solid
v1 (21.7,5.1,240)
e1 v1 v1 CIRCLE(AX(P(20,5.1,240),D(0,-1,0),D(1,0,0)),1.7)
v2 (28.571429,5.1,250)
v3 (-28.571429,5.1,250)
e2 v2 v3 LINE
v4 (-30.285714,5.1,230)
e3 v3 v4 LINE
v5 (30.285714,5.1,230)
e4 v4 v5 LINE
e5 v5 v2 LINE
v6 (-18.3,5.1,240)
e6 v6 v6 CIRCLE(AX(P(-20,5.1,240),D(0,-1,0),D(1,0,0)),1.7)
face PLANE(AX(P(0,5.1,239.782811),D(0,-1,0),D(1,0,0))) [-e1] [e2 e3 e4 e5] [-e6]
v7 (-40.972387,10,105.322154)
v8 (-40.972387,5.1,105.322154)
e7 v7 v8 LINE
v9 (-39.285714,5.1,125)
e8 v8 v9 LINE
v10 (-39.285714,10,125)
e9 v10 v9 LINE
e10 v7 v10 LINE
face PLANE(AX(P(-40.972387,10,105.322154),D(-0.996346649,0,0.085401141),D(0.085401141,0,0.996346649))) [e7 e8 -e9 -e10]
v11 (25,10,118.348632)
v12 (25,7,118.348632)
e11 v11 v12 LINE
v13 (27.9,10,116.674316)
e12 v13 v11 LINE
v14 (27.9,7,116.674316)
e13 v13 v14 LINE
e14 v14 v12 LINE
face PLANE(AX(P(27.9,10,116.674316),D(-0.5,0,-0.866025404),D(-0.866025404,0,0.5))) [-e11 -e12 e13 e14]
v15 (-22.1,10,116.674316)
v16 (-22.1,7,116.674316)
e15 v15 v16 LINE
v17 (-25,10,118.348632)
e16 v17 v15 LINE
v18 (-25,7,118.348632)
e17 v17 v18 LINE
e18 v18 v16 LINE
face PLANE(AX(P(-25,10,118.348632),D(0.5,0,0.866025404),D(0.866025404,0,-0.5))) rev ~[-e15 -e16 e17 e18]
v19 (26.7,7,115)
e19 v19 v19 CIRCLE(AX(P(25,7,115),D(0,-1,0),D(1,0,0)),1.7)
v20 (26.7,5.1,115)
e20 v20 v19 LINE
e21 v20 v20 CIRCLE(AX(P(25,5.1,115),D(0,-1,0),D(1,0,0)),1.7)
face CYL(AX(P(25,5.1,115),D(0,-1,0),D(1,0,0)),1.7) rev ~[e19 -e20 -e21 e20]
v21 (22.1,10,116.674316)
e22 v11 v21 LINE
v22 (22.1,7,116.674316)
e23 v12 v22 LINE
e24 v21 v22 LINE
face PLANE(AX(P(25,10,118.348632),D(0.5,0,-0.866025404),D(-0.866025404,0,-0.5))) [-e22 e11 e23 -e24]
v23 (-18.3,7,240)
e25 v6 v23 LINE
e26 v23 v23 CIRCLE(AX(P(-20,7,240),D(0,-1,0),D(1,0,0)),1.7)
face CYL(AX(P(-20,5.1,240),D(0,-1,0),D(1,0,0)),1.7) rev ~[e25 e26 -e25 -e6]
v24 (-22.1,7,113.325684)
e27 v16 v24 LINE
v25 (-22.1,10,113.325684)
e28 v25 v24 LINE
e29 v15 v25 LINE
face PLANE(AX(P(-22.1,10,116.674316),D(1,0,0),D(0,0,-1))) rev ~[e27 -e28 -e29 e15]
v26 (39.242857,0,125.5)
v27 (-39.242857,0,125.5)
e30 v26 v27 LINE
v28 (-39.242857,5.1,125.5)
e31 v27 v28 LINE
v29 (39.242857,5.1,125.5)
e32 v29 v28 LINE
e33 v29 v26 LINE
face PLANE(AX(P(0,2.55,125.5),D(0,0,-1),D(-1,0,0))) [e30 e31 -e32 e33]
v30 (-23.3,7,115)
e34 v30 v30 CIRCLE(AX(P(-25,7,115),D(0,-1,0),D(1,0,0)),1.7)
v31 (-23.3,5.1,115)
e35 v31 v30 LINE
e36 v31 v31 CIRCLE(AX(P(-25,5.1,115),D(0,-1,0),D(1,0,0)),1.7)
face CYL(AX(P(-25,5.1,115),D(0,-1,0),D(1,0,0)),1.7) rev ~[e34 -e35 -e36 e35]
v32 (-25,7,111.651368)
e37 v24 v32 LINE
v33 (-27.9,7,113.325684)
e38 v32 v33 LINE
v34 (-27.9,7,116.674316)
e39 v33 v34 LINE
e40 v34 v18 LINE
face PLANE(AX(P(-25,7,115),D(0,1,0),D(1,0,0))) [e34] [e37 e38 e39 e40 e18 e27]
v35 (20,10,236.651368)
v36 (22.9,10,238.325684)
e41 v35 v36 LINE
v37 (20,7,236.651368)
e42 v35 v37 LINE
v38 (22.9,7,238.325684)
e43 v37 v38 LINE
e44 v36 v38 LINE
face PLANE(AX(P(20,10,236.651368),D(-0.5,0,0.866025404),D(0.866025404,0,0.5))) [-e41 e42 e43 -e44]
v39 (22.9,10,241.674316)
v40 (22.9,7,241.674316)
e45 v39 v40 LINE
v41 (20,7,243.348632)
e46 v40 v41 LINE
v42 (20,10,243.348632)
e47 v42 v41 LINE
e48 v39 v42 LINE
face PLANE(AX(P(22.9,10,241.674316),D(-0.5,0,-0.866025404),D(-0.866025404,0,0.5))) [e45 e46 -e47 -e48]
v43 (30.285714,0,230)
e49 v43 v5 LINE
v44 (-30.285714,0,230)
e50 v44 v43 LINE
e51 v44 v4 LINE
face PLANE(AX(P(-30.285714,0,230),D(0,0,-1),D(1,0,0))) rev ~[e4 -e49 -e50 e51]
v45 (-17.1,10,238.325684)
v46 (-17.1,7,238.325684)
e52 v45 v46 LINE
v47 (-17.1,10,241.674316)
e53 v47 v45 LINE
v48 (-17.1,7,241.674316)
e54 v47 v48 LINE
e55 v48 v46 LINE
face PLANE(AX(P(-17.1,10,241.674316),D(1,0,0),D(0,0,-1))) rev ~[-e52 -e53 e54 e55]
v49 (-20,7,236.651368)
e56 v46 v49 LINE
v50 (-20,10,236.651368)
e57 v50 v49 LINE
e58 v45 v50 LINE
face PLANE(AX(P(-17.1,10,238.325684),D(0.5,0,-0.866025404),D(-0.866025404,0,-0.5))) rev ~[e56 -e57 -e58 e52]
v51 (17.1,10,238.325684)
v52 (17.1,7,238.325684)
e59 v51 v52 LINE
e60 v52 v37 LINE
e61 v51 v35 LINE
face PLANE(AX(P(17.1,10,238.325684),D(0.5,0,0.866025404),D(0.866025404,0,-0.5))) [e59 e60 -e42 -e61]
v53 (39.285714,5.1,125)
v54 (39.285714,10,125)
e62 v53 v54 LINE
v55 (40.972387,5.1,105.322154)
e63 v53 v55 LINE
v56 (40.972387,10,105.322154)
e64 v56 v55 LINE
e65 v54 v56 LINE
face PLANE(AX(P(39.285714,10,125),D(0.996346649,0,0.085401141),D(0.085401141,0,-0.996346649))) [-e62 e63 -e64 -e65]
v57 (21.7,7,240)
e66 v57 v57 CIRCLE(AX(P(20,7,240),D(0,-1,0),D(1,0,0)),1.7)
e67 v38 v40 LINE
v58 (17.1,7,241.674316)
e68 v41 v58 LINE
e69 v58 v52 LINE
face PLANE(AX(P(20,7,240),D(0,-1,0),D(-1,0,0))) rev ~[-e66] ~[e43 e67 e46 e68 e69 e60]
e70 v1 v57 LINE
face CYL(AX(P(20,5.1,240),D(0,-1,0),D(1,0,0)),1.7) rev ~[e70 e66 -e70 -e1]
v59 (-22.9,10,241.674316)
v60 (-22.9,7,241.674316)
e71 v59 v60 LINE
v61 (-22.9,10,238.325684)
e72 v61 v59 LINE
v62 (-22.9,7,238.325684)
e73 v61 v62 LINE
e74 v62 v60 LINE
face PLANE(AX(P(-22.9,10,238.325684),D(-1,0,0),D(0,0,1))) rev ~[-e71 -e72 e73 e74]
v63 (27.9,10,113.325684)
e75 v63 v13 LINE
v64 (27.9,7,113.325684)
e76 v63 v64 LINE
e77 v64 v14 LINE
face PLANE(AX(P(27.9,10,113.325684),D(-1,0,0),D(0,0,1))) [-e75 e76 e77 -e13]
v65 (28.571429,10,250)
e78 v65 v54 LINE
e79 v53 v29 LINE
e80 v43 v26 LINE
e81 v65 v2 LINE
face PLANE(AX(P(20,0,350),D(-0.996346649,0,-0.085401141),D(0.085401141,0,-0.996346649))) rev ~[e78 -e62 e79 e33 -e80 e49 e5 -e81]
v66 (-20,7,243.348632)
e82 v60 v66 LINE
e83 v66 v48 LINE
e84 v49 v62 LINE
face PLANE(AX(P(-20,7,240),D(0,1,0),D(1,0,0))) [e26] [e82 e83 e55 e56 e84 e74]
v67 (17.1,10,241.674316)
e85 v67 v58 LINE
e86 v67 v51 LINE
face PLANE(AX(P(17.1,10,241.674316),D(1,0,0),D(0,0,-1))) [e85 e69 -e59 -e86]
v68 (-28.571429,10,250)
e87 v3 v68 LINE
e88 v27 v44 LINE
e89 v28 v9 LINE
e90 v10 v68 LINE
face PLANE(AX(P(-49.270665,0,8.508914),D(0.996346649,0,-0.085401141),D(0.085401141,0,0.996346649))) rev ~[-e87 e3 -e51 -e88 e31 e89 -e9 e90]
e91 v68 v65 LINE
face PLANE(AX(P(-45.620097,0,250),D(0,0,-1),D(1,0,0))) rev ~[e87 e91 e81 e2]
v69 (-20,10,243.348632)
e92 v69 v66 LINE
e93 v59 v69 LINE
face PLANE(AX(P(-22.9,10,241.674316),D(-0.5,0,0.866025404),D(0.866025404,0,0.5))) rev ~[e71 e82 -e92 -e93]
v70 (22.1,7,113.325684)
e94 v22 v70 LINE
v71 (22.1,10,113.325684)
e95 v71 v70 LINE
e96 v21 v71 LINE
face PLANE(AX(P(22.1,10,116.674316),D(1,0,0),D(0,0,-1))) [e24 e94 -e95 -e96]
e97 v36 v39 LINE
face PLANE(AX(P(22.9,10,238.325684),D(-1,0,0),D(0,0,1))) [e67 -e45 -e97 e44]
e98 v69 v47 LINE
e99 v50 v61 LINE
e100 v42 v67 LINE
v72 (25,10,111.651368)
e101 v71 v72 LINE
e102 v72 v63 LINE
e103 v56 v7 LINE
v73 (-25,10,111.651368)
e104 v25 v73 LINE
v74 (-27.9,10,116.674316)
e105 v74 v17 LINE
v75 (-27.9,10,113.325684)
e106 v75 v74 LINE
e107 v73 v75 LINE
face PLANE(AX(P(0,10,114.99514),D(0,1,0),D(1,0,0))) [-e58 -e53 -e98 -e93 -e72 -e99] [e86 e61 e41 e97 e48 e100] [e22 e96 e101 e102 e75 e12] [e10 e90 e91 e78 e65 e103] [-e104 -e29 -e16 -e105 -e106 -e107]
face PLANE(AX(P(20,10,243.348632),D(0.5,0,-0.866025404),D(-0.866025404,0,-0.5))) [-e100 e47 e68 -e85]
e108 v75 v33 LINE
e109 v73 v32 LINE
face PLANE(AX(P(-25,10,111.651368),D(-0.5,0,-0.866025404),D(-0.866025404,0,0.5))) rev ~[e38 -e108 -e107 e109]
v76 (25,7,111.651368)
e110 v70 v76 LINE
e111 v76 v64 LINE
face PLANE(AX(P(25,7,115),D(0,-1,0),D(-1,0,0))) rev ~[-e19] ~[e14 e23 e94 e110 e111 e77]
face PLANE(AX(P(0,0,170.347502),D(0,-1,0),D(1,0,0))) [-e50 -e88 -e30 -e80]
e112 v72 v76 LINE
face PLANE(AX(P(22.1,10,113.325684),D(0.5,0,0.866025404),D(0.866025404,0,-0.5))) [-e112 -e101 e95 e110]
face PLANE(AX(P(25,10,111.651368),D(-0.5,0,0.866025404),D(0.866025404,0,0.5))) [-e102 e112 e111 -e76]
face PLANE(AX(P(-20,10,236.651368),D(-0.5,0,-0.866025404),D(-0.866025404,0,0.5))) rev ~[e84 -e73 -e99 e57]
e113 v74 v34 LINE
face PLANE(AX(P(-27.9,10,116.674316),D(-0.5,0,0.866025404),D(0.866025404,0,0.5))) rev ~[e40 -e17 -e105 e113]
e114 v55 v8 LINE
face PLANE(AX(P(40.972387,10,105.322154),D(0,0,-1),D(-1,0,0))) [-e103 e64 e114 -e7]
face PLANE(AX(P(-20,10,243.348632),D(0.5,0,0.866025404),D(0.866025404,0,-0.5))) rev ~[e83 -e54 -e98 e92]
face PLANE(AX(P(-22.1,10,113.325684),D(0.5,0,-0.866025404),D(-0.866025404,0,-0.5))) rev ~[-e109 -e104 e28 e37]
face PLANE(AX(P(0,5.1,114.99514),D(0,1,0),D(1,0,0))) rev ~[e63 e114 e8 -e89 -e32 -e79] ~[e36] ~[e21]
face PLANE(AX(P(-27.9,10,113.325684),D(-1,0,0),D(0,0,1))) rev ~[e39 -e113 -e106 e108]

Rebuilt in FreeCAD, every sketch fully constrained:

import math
import FreeCAD as App
import Part
import Sketcher
Q = App.Units.Quantity

doc = App.newDocument("Part")
body = doc.addObject("PartDesign::Body", "Body")

# Sketch on XZ plane
sketch1 = body.newObject("Sketcher::SketchObject", "Sketch")
sketch1.AttachmentSupport = (doc.getObject("XZ_Plane"), [""])
sketch1.MapMode = "FlatFace"
sketch1.addGeometry(Part.Circle(App.Vector(0, 0, 0), App.Vector(0, 0, 1), 50), False)
sketch1.addConstraint(Sketcher.Constraint("Coincident", 0, 3, -1, 1))
sketch1.addConstraint(Sketcher.Constraint("Diameter", 0, 100.0))
pad1 = body.newObject("PartDesign::Pad", "Pad")
pad1.Profile = sketch1
pad1.Length = 10
pad1.Reversed = True

# Sketch on XZ plane
sketch2 = body.newObject("Sketcher::SketchObject", "Sketch001")
sketch2.AttachmentSupport = (doc.getObject("XZ_Plane"), [""])
sketch2.MapMode = "FlatFace"
sketch2.AttachmentOffset = App.Placement(App.Vector(0, 0, -10), App.Rotation())
sketch2.addGeometry(Part.Circle(App.Vector(0, 0, 0), App.Vector(0, 0, 1), 20), False)
sketch2.addConstraint(Sketcher.Constraint("Coincident", 0, 3, -1, 1))
sketch2.addConstraint(Sketcher.Constraint("Diameter", 0, 40.0))
pocket1 = body.newObject("PartDesign::Pocket", "Pocket")
pocket1.Profile = sketch2
pocket1.Length = 5
pocket1.Reversed = True

# Sketch on XZ plane
sketch3 = body.newObject("Sketcher::SketchObject", "Sketch002")
sketch3.AttachmentSupport = (doc.getObject("XZ_Plane"), [""])
sketch3.MapMode = "FlatFace"
sketch3.addGeometry(Part.LineSegment(App.Vector(2.9, 16.6, 0), App.Vector(0, 18.3, 0)), False)
sketch3.addGeometry(Part.LineSegment(App.Vector(0, 18.3, 0), App.Vector(-2.9, 16.6, 0)), False)
sketch3.addGeometry(Part.LineSegment(App.Vector(-2.9, 16.6, 0), App.Vector(-2.9, 13.4, 0)), False)
sketch3.addGeometry(Part.LineSegment(App.Vector(-2.9, 13.4, 0), App.Vector(0, 11.7, 0)), False)
sketch3.addGeometry(Part.LineSegment(App.Vector(0, 11.7, 0), App.Vector(2.9, 13.4, 0)), False)
sketch3.addGeometry(Part.LineSegment(App.Vector(2.9, 13.4, 0), App.Vector(2.9, 16.6, 0)), False)
sketch3.addGeometry(Part.LineSegment(App.Vector(-13, -4.2, 0), App.Vector(-15.8, -5.9, 0)), False)
sketch3.addGeometry(Part.LineSegment(App.Vector(-15.8, -5.9, 0), App.Vector(-15.8, -9.1, 0)), False)
sketch3.addGeometry(Part.LineSegment(App.Vector(-15.8, -9.1, 0), App.Vector(-13, -10.8, 0)), False)
sketch3.addGeometry(Part.LineSegment(App.Vector(-13, -10.8, 0), App.Vector(-10.1, -9.1, 0)), False)
sketch3.addGeometry(Part.LineSegment(App.Vector(-10.1, -9.1, 0), App.Vector(-10.1, -5.9, 0)), False)
sketch3.addGeometry(Part.LineSegment(App.Vector(-10.1, -5.9, 0), App.Vector(-13, -4.2, 0)), False)
sketch3.addGeometry(Part.LineSegment(App.Vector(15.8, -5.9, 0), App.Vector(13, -4.2, 0)), False)
sketch3.addGeometry(Part.LineSegment(App.Vector(13, -4.2, 0), App.Vector(10.1, -5.9, 0)), False)
sketch3.addGeometry(Part.LineSegment(App.Vector(10.1, -5.9, 0), App.Vector(10.1, -9.1, 0)), False)
sketch3.addGeometry(Part.LineSegment(App.Vector(10.1, -9.1, 0), App.Vector(13, -10.8, 0)), False)
sketch3.addGeometry(Part.LineSegment(App.Vector(13, -10.8, 0), App.Vector(15.8, -9.1, 0)), False)
sketch3.addGeometry(Part.LineSegment(App.Vector(15.8, -9.1, 0), App.Vector(15.8, -5.9, 0)), False)
sketch3.addConstraint(Sketcher.Constraint("Coincident", 0, 2, 1, 1))
sketch3.addConstraint(Sketcher.Constraint("Coincident", 1, 2, 2, 1))
sketch3.addConstraint(Sketcher.Constraint("Coincident", 2, 2, 3, 1))
sketch3.addConstraint(Sketcher.Constraint("Coincident", 3, 2, 4, 1))
sketch3.addConstraint(Sketcher.Constraint("Coincident", 4, 2, 5, 1))
sketch3.addConstraint(Sketcher.Constraint("Coincident", 5, 2, 0, 1))
sketch3.addConstraint(Sketcher.Constraint("Coincident", 6, 2, 7, 1))
sketch3.addConstraint(Sketcher.Constraint("Coincident", 7, 2, 8, 1))
sketch3.addConstraint(Sketcher.Constraint("Coincident", 8, 2, 9, 1))
sketch3.addConstraint(Sketcher.Constraint("Coincident", 9, 2, 10, 1))
sketch3.addConstraint(Sketcher.Constraint("Coincident", 10, 2, 11, 1))
sketch3.addConstraint(Sketcher.Constraint("Coincident", 11, 2, 6, 1))
sketch3.addConstraint(Sketcher.Constraint("Coincident", 12, 2, 13, 1))
sketch3.addConstraint(Sketcher.Constraint("Coincident", 13, 2, 14, 1))
sketch3.addConstraint(Sketcher.Constraint("Coincident", 14, 2, 15, 1))
sketch3.addConstraint(Sketcher.Constraint("Coincident", 15, 2, 16, 1))
sketch3.addConstraint(Sketcher.Constraint("Coincident", 16, 2, 17, 1))
sketch3.addConstraint(Sketcher.Constraint("Coincident", 17, 2, 12, 1))
sketch3.addConstraint(Sketcher.Constraint("Vertical", 2))
sketch3.addConstraint(Sketcher.Constraint("Vertical", 5))
sketch3.addConstraint(Sketcher.Constraint("Vertical", 7))
sketch3.addConstraint(Sketcher.Constraint("Vertical", 10))
sketch3.addConstraint(Sketcher.Constraint("Vertical", 14))
sketch3.addConstraint(Sketcher.Constraint("Vertical", 17))
sketch3.addConstraint(Sketcher.Constraint("Symmetric", 2, 2, 4, 2, -2))
sketch3.addConstraint(Sketcher.Constraint("Symmetric", 11, 2, 12, 2, -2))
sketch3.addConstraint(Sketcher.Constraint("Symmetric", 10, 2, 13, 2, -2))
sketch3.addConstraint(Sketcher.Constraint("Symmetric", 8, 2, 15, 2, -2))
sketch3.addConstraint(Sketcher.Constraint("Symmetric", 7, 2, 16, 2, -2))
sketch3.addConstraint(Sketcher.Constraint("PointOnObject", 0, 2, -2))
sketch3.addConstraint(Sketcher.Constraint("PointOnObject", 3, 2, -2))
sketch3.addConstraint(Sketcher.Constraint("Parallel", 0, 3))
sketch3.addConstraint(Sketcher.Constraint("Parallel", 1, 4))
sketch3.addConstraint(Sketcher.Constraint("Parallel", 4, 6))
sketch3.addConstraint(Sketcher.Constraint("Parallel", 3, 8))
sketch3.addConstraint(Sketcher.Constraint("Parallel", 6, 9))
sketch3.addConstraint(Sketcher.Constraint("Parallel", 8, 11))
sketch3.addConstraint(Sketcher.Constraint("Parallel", 11, 12))
sketch3.addConstraint(Sketcher.Constraint("Parallel", 12, 15))
sketch3.addConstraint(Sketcher.Constraint("Horizontal", 7, 2, 9, 2))
sketch3.addConstraint(Sketcher.Constraint("Horizontal", 6, 2, 10, 2))
sketch3.addConstraint(Sketcher.Constraint("Equal", 5, 7))
sketch3.addConstraint(Sketcher.Constraint("Equal", 4, 6))
sketch3.addConstraint(Sketcher.Constraint("Angle", 0, Q("150 deg")))
sketch3.addConstraint(Sketcher.Constraint("DistanceX", 2, 2, 4, 2, 5.7))
sketch3.addConstraint(Sketcher.Constraint("DistanceY", 6, 2, 1, 2, 22.5))
sketch3.addConstraint(Sketcher.Constraint("DistanceY", 2, 2, 2, 1, 3.290897))
sketch3.addConstraint(Sketcher.Constraint("DistanceY", -1, 1, 1, 2, 16.645448))
sketch3.addConstraint(Sketcher.Constraint("DistanceX", 6, 2, -1, 1, 15.840381))
pocket2 = body.newObject("PartDesign::Pocket", "Pocket001")
pocket2.Profile = sketch3
pocket2.Length = 3

# Sketch on XZ plane
sketch4 = body.newObject("Sketcher::SketchObject", "Sketch003")
sketch4.AttachmentSupport = (doc.getObject("XZ_Plane"), [""])
sketch4.MapMode = "FlatFace"
sketch4.addGeometry(Part.Circle(App.Vector(0, 15, 0), App.Vector(0, 0, 1), 1.7), False)
sketch4.addGeometry(Part.Circle(App.Vector(13, -7.5, 0), App.Vector(0, 0, 1), 1.7), False)
sketch4.addGeometry(Part.Circle(App.Vector(-13, -7.5, 0), App.Vector(0, 0, 1), 1.7), False)
sketch4.addConstraint(Sketcher.Constraint("Equal", 0, 1))
sketch4.addConstraint(Sketcher.Constraint("Equal", 1, 2))
sketch4.addConstraint(Sketcher.Constraint("Symmetric", 1, 3, 2, 3, -2))
sketch4.addConstraint(Sketcher.Constraint("PointOnObject", 0, 3, -2))
sketch4.addConstraint(Sketcher.Constraint("Diameter", 0, 3.4))
sketch4.addConstraint(Sketcher.Constraint("DistanceY", -1, 1, 0, 3, 15.0))
sketch4.addConstraint(Sketcher.Constraint("DistanceY", 1, 3, -1, 1, 7.5))
sketch4.addConstraint(Sketcher.Constraint("DistanceX", -1, 1, 1, 3, 12.990381))
pocket3 = body.newObject("PartDesign::Pocket", "Pocket002")
pocket3.Profile = sketch4
pocket3.Length = 10
body2 = doc.addObject("PartDesign::Body", "Body001")

# Sketch on XZ plane
sketch5 = body2.newObject("Sketcher::SketchObject", "Sketch004")
sketch5.AttachmentSupport = (doc.getObject("XZ_Plane001"), [""])
sketch5.MapMode = "FlatFace"
sketch5.addGeometry(Part.LineSegment(App.Vector(-50, 350, 0), App.Vector(-50, 0, 0)), False)
sketch5.addGeometry(Part.ArcOfCircle(Part.Circle(App.Vector(0, 0, 0), App.Vector(0, 0, 1), 50), math.radians(0), math.radians(180)), False)
sketch5.addGeometry(Part.LineSegment(App.Vector(50, 0, 0), App.Vector(50, 350, 0)), False)
sketch5.addGeometry(Part.LineSegment(App.Vector(50, 350, 0), App.Vector(-50, 350, 0)), False)
sketch5.addConstraint(Sketcher.Constraint("Tangent", 0, 2, 1, 2))
sketch5.addConstraint(Sketcher.Constraint("Tangent", 1, 1, 2, 1))
sketch5.addConstraint(Sketcher.Constraint("Coincident", 2, 2, 3, 1))
sketch5.addConstraint(Sketcher.Constraint("Coincident", 3, 2, 0, 1))
sketch5.addConstraint(Sketcher.Constraint("Vertical", 0))
sketch5.addConstraint(Sketcher.Constraint("Vertical", 2))
sketch5.addConstraint(Sketcher.Constraint("Horizontal", 3))
sketch5.addConstraint(Sketcher.Constraint("Coincident", 1, 3, -1, 1))
sketch5.addConstraint(Sketcher.Constraint("Radius", 1, 50.0))
sketch5.addConstraint(Sketcher.Constraint("DistanceY", 0, 2, 0, 1, 350.0))
pad2 = body2.newObject("PartDesign::Pad", "Pad001")
pad2.Profile = sketch5
pad2.Length = 10
pad2.Reversed = True

# Sketch on XZ plane
sketch6 = body2.newObject("Sketcher::SketchObject", "Sketch005")
sketch6.AttachmentSupport = (doc.getObject("XZ_Plane001"), [""])
sketch6.MapMode = "FlatFace"
sketch6.addGeometry(Part.LineSegment(App.Vector(-10, 340, 0), App.Vector(-10, 299, 0)), False)
sketch6.addGeometry(Part.LineSegment(App.Vector(-10, 299, 0), App.Vector(10, 299, 0)), False)
sketch6.addGeometry(Part.LineSegment(App.Vector(10, 299, 0), App.Vector(10, 340, 0)), False)
sketch6.addGeometry(Part.LineSegment(App.Vector(10, 340, 0), App.Vector(-10, 340, 0)), False)
sketch6.addConstraint(Sketcher.Constraint("Coincident", 0, 2, 1, 1))
sketch6.addConstraint(Sketcher.Constraint("Coincident", 1, 2, 2, 1))
sketch6.addConstraint(Sketcher.Constraint("Coincident", 2, 2, 3, 1))
sketch6.addConstraint(Sketcher.Constraint("Coincident", 3, 2, 0, 1))
sketch6.addConstraint(Sketcher.Constraint("Vertical", 0))
sketch6.addConstraint(Sketcher.Constraint("Horizontal", 1))
sketch6.addConstraint(Sketcher.Constraint("Vertical", 2))
sketch6.addConstraint(Sketcher.Constraint("Horizontal", 3))
sketch6.addConstraint(Sketcher.Constraint("DistanceX", 1, 1, 1, 2, 21.0))
sketch6.addConstraint(Sketcher.Constraint("DistanceY", 0, 2, 0, 1, 41.0))
sketch6.addConstraint(Sketcher.Constraint("DistanceY", -1, 1, 0, 2, 299.0))
sketch6.addConstraint(Sketcher.Constraint("DistanceX", 0, 2, -1, 1, 10.5))
pocket4 = body2.newObject("PartDesign::Pocket", "Pocket003")
pocket4.Profile = sketch6
pocket4.Length = 10

# Sketch on XZ plane
sketch7 = body2.newObject("Sketcher::SketchObject", "Sketch006")
sketch7.AttachmentSupport = (doc.getObject("XZ_Plane001"), [""])
sketch7.MapMode = "FlatFace"
sketch7.addGeometry(Part.LineSegment(App.Vector(-10, 346, 0), App.Vector(-10, 340, 0)), False)
sketch7.addGeometry(Part.LineSegment(App.Vector(-10, 340, 0), App.Vector(10, 340, 0)), False)
sketch7.addGeometry(Part.LineSegment(App.Vector(10, 340, 0), App.Vector(10, 346, 0)), False)
sketch7.addGeometry(Part.LineSegment(App.Vector(10, 346, 0), App.Vector(-10, 346, 0)), False)
sketch7.addGeometry(Part.LineSegment(App.Vector(-10, 299, 0), App.Vector(-10, 292, 0)), False)
sketch7.addGeometry(Part.LineSegment(App.Vector(-10, 292, 0), App.Vector(10, 292, 0)), False)
sketch7.addGeometry(Part.LineSegment(App.Vector(10, 292, 0), App.Vector(10, 299, 0)), False)
sketch7.addGeometry(Part.LineSegment(App.Vector(10, 299, 0), App.Vector(-10, 299, 0)), False)
sketch7.addConstraint(Sketcher.Constraint("Coincident", 0, 2, 1, 1))
sketch7.addConstraint(Sketcher.Constraint("Coincident", 1, 2, 2, 1))
sketch7.addConstraint(Sketcher.Constraint("Coincident", 2, 2, 3, 1))
sketch7.addConstraint(Sketcher.Constraint("Coincident", 3, 2, 0, 1))
sketch7.addConstraint(Sketcher.Constraint("Coincident", 4, 2, 5, 1))
sketch7.addConstraint(Sketcher.Constraint("Coincident", 5, 2, 6, 1))
sketch7.addConstraint(Sketcher.Constraint("Coincident", 6, 2, 7, 1))
sketch7.addConstraint(Sketcher.Constraint("Coincident", 7, 2, 4, 1))
sketch7.addConstraint(Sketcher.Constraint("Vertical", 0))
sketch7.addConstraint(Sketcher.Constraint("Horizontal", 1))
sketch7.addConstraint(Sketcher.Constraint("Vertical", 2))
sketch7.addConstraint(Sketcher.Constraint("Horizontal", 3))
sketch7.addConstraint(Sketcher.Constraint("Vertical", 4))
sketch7.addConstraint(Sketcher.Constraint("Horizontal", 5))
sketch7.addConstraint(Sketcher.Constraint("Vertical", 6))
sketch7.addConstraint(Sketcher.Constraint("Horizontal", 7))
sketch7.addConstraint(Sketcher.Constraint("Vertical", 3, 2, 4, 2))
sketch7.addConstraint(Sketcher.Constraint("Vertical", 2, 2, 5, 2))
sketch7.addConstraint(Sketcher.Constraint("Equal", 2, 4))
sketch7.addConstraint(Sketcher.Constraint("DistanceX", 1, 1, 1, 2, 21.0))
sketch7.addConstraint(Sketcher.Constraint("DistanceY", 0, 2, 0, 1, 6.5))
sketch7.addConstraint(Sketcher.Constraint("DistanceY", -1, 1, 0, 2, 340.0))
sketch7.addConstraint(Sketcher.Constraint("DistanceY", -1, 1, 6, 2, 299.0))
sketch7.addConstraint(Sketcher.Constraint("DistanceX", 0, 2, -1, 1, 10.5))
pocket5 = body2.newObject("PartDesign::Pocket", "Pocket004")
pocket5.Profile = sketch7
pocket5.Length = 1.5

# Sketch on XZ plane
sketch8 = body2.newObject("Sketcher::SketchObject", "Sketch007")
sketch8.AttachmentSupport = (doc.getObject("XZ_Plane001"), [""])
sketch8.MapMode = "FlatFace"
sketch8.AttachmentOffset = App.Placement(App.Vector(0, 0, -1.5), App.Rotation())
sketch8.addGeometry(Part.Circle(App.Vector(-5, 343.8, 0), App.Vector(0, 0, 1), 1.7), False)
sketch8.addGeometry(Part.Circle(App.Vector(5, 343.8, 0), App.Vector(0, 0, 1), 1.7), False)
sketch8.addGeometry(Part.Circle(App.Vector(-5, 295.2, 0), App.Vector(0, 0, 1), 1.7), False)
sketch8.addGeometry(Part.Circle(App.Vector(5, 295.2, 0), App.Vector(0, 0, 1), 1.7), False)
sketch8.addConstraint(Sketcher.Constraint("Equal", 0, 1))
sketch8.addConstraint(Sketcher.Constraint("Equal", 1, 2))
sketch8.addConstraint(Sketcher.Constraint("Equal", 2, 3))
sketch8.addConstraint(Sketcher.Constraint("Symmetric", 0, 3, 1, 3, -2))
sketch8.addConstraint(Sketcher.Constraint("Symmetric", 2, 3, 3, 3, -2))
sketch8.addConstraint(Sketcher.Constraint("Vertical", 0, 3, 2, 3))
sketch8.addConstraint(Sketcher.Constraint("Diameter", 0, 3.4))
sketch8.addConstraint(Sketcher.Constraint("DistanceX", 0, 3, -1, 1, 5.0))
sketch8.addConstraint(Sketcher.Constraint("DistanceY", 2, 3, 0, 3, 48.5))
sketch8.addConstraint(Sketcher.Constraint("DistanceY", -1, 1, 0, 3, 343.75))
pocket6 = body2.newObject("PartDesign::Pocket", "Pocket005")
pocket6.Profile = sketch8
pocket6.Length = 9

# Sketch on XZ plane
sketch9 = body2.newObject("Sketcher::SketchObject", "Sketch008")
sketch9.AttachmentSupport = (doc.getObject("XZ_Plane001"), [""])
sketch9.MapMode = "FlatFace"
sketch9.addGeometry(Part.LineSegment(App.Vector(-50, 350, 0), App.Vector(-50, 0, 0)), False)
sketch9.addGeometry(Part.ArcOfCircle(Part.Circle(App.Vector(0, 0, 0), App.Vector(0, 0, 1), 50), math.radians(170.2), math.radians(180)), False)
sketch9.addGeometry(Part.LineSegment(App.Vector(-49, 9, 0), App.Vector(-20, 350, 0)), False)
sketch9.addGeometry(Part.LineSegment(App.Vector(-20, 350, 0), App.Vector(-50, 350, 0)), False)
sketch9.addGeometry(Part.LineSegment(App.Vector(20, 350, 0), App.Vector(49, 9, 0)), False)
sketch9.addGeometry(Part.ArcOfCircle(Part.Circle(App.Vector(0, 0, 0), App.Vector(0, 0, 1), 50), math.radians(0), math.radians(9.8)), False)
sketch9.addGeometry(Part.LineSegment(App.Vector(50, 0, 0), App.Vector(50, 350, 0)), False)
sketch9.addGeometry(Part.LineSegment(App.Vector(50, 350, 0), App.Vector(20, 350, 0)), False)
sketch9.addConstraint(Sketcher.Constraint("Tangent", 0, 2, 1, 2))
sketch9.addConstraint(Sketcher.Constraint("Coincident", 1, 1, 2, 1))
sketch9.addConstraint(Sketcher.Constraint("Coincident", 2, 2, 3, 1))
sketch9.addConstraint(Sketcher.Constraint("Coincident", 3, 2, 0, 1))
sketch9.addConstraint(Sketcher.Constraint("Coincident", 4, 2, 5, 2))
sketch9.addConstraint(Sketcher.Constraint("Tangent", 5, 1, 6, 1))
sketch9.addConstraint(Sketcher.Constraint("Coincident", 6, 2, 7, 1))
sketch9.addConstraint(Sketcher.Constraint("Coincident", 7, 2, 4, 1))
sketch9.addConstraint(Sketcher.Constraint("Vertical", 0))
sketch9.addConstraint(Sketcher.Constraint("Horizontal", 3))
sketch9.addConstraint(Sketcher.Constraint("Vertical", 6))
sketch9.addConstraint(Sketcher.Constraint("Horizontal", 7))
sketch9.addConstraint(Sketcher.Constraint("Coincident", 1, 3, -1, 1))
sketch9.addConstraint(Sketcher.Constraint("Coincident", 5, 3, -1, 1))
sketch9.addConstraint(Sketcher.Constraint("Equal", 1, 5))
sketch9.addConstraint(Sketcher.Constraint("Symmetric", 2, 2, 7, 2, -2))
sketch9.addConstraint(Sketcher.Constraint("Horizontal", 1, 1, 4, 2))
sketch9.addConstraint(Sketcher.Constraint("Radius", 1, 50.0))
sketch9.addConstraint(Sketcher.Constraint("DistanceX", 3, 2, 3, 1, 30.0))
sketch9.addConstraint(Sketcher.Constraint("DistanceY", 0, 2, 0, 1, 350.0))
sketch9.addConstraint(Sketcher.Constraint("DistanceX", 1, 1, 4, 2, 98.541329))
pocket7 = body2.newObject("PartDesign::Pocket", "Pocket006")
pocket7.Profile = sketch9
pocket7.Length = 10
body3 = doc.addObject("PartDesign::Body", "Body002")

# Sketch on XZ plane
sketch10 = body3.newObject("Sketcher::SketchObject", "Sketch009")
sketch10.AttachmentSupport = (doc.getObject("XZ_Plane002"), [""])
sketch10.MapMode = "FlatFace"
sketch10.AttachmentOffset = App.Placement(App.Vector(0, 0, -10), App.Rotation())
sketch10.addGeometry(Part.LineSegment(App.Vector(-74, -54, 0), App.Vector(-74, 125, 0)), False)
sketch10.addGeometry(Part.LineSegment(App.Vector(-74, 125, 0), App.Vector(58, 125, 0)), False)
sketch10.addGeometry(Part.LineSegment(App.Vector(58, 125, 0), App.Vector(58, -54, 0)), False)
sketch10.addGeometry(Part.LineSegment(App.Vector(58, -54, 0), App.Vector(-74, -54, 0)), False)
sketch10.addConstraint(Sketcher.Constraint("Coincident", 0, 2, 1, 1))
sketch10.addConstraint(Sketcher.Constraint("Coincident", 1, 2, 2, 1))
sketch10.addConstraint(Sketcher.Constraint("Coincident", 2, 2, 3, 1))
sketch10.addConstraint(Sketcher.Constraint("Coincident", 3, 2, 0, 1))
sketch10.addConstraint(Sketcher.Constraint("Vertical", 0))
sketch10.addConstraint(Sketcher.Constraint("Horizontal", 1))
sketch10.addConstraint(Sketcher.Constraint("Vertical", 2))
sketch10.addConstraint(Sketcher.Constraint("Horizontal", 3))
sketch10.addConstraint(Sketcher.Constraint("DistanceY", -1, 1, 0, 2, 125.0))
sketch10.addConstraint(Sketcher.Constraint("DistanceX", 1, 1, 1, 2, 131.73517))
sketch10.addConstraint(Sketcher.Constraint("DistanceY", 0, 1, 0, 2, 179.266556))
sketch10.addConstraint(Sketcher.Constraint("DistanceX", 0, 2, -1, 1, 74.033722))
pad3 = body3.newObject("PartDesign::Pad", "Pad002")
pad3.Profile = sketch10
pad3.Length = 79
doc.recompute()

body4 = doc.addObject("PartDesign::Body", "Body003")
body4.BaseFeature = body3
boolean = body.newObject("PartDesign::Boolean", "Boolean")
boolean.Type = "Cut"
boolean.addObjects([body4])
doc.recompute()

boolean2 = body2.newObject("PartDesign::Boolean", "Boolean001")
boolean2.Type = "Cut"
boolean2.addObjects([body3])

# Sketch on XZ plane
sketch11 = body2.newObject("Sketcher::SketchObject", "Sketch010")
sketch11.AttachmentSupport = (doc.getObject("XZ_Plane001"), [""])
sketch11.MapMode = "FlatFace"
sketch11.AttachmentOffset = App.Placement(App.Vector(0, 0, -10), App.Rotation())
sketch11.addGeometry(Part.LineSegment(App.Vector(41, 105, 0), App.Vector(-41, 105, 0)), False)
sketch11.addGeometry(Part.LineSegment(App.Vector(-41, 105, 0), App.Vector(-39, 125, 0)), False)
sketch11.addGeometry(Part.LineSegment(App.Vector(-39, 125, 0), App.Vector(39, 125, 0)), False)
sketch11.addGeometry(Part.LineSegment(App.Vector(39, 125, 0), App.Vector(41, 105, 0)), False)
sketch11.addConstraint(Sketcher.Constraint("Coincident", 0, 2, 1, 1))
sketch11.addConstraint(Sketcher.Constraint("Coincident", 1, 2, 2, 1))
sketch11.addConstraint(Sketcher.Constraint("Coincident", 2, 2, 3, 1))
sketch11.addConstraint(Sketcher.Constraint("Coincident", 3, 2, 0, 1))
sketch11.addConstraint(Sketcher.Constraint("Horizontal", 0))
sketch11.addConstraint(Sketcher.Constraint("Horizontal", 2))
sketch11.addConstraint(Sketcher.Constraint("Equal", 1, 3))
sketch11.addConstraint(Sketcher.Constraint("DistanceY", -1, 1, 1, 2, 125.0))
sketch11.addConstraint(Sketcher.Constraint("Distance", 1, 19.75))
sketch11.addConstraint(Sketcher.Constraint("DistanceX", 2, 1, 2, 2, 78.571429))
sketch11.addConstraint(Sketcher.Constraint("DistanceX", 0, 2, 2, 2, 80.258101))
sketch11.addConstraint(Sketcher.Constraint("DistanceX", 0, 2, -1, 1, 40.972387))
pad4 = body2.newObject("PartDesign::Pad", "Pad003")
pad4.Profile = sketch11
pad4.Length = 4.9

# Sketch on XZ plane
sketch12 = body2.newObject("Sketcher::SketchObject", "Sketch011")
sketch12.AttachmentSupport = (doc.getObject("XZ_Plane001"), [""])
sketch12.MapMode = "FlatFace"
sketch12.AttachmentOffset = App.Placement(App.Vector(0, 0, -5.1), App.Rotation())
sketch12.addGeometry(Part.Circle(App.Vector(-25, 115, 0), App.Vector(0, 0, 1), 1.7), False)
sketch12.addGeometry(Part.Circle(App.Vector(25, 115, 0), App.Vector(0, 0, 1), 1.7), False)
sketch12.addConstraint(Sketcher.Constraint("Equal", 0, 1))
sketch12.addConstraint(Sketcher.Constraint("Symmetric", 0, 3, 1, 3, -2))
sketch12.addConstraint(Sketcher.Constraint("Diameter", 0, 3.4))
sketch12.addConstraint(Sketcher.Constraint("DistanceX", 0, 3, -1, 1, 25.0))
sketch12.addConstraint(Sketcher.Constraint("DistanceY", -1, 1, 0, 3, 115.0))
pocket8 = body2.newObject("PartDesign::Pocket", "Pocket007")
pocket8.Profile = sketch12
pocket8.Length = 10

# Sketch on XZ plane
sketch13 = body2.newObject("Sketcher::SketchObject", "Sketch012")
sketch13.AttachmentSupport = (doc.getObject("XZ_Plane001"), [""])
sketch13.MapMode = "FlatFace"
sketch13.AttachmentOffset = App.Placement(App.Vector(0, 0, -10), App.Rotation())
sketch13.addGeometry(Part.LineSegment(App.Vector(-25, 111.7, 0), App.Vector(-27.9, 113.3, 0)), False)
sketch13.addGeometry(Part.LineSegment(App.Vector(-27.9, 113.3, 0), App.Vector(-27.9, 116.7, 0)), False)
sketch13.addGeometry(Part.LineSegment(App.Vector(-27.9, 116.7, 0), App.Vector(-25, 118.3, 0)), False)
sketch13.addGeometry(Part.LineSegment(App.Vector(-25, 118.3, 0), App.Vector(-22.1, 116.7, 0)), False)
sketch13.addGeometry(Part.LineSegment(App.Vector(-22.1, 116.7, 0), App.Vector(-22.1, 113.3, 0)), False)
sketch13.addGeometry(Part.LineSegment(App.Vector(-22.1, 113.3, 0), App.Vector(-25, 111.7, 0)), False)
sketch13.addGeometry(Part.LineSegment(App.Vector(25, 111.7, 0), App.Vector(22.1, 113.3, 0)), False)
sketch13.addGeometry(Part.LineSegment(App.Vector(22.1, 113.3, 0), App.Vector(22.1, 116.7, 0)), False)
sketch13.addGeometry(Part.LineSegment(App.Vector(22.1, 116.7, 0), App.Vector(25, 118.3, 0)), False)
sketch13.addGeometry(Part.LineSegment(App.Vector(25, 118.3, 0), App.Vector(27.9, 116.7, 0)), False)
sketch13.addGeometry(Part.LineSegment(App.Vector(27.9, 116.7, 0), App.Vector(27.9, 113.3, 0)), False)
sketch13.addGeometry(Part.LineSegment(App.Vector(27.9, 113.3, 0), App.Vector(25, 111.7, 0)), False)
sketch13.addConstraint(Sketcher.Constraint("Coincident", 0, 2, 1, 1))
sketch13.addConstraint(Sketcher.Constraint("Coincident", 1, 2, 2, 1))
sketch13.addConstraint(Sketcher.Constraint("Coincident", 2, 2, 3, 1))
sketch13.addConstraint(Sketcher.Constraint("Coincident", 3, 2, 4, 1))
sketch13.addConstraint(Sketcher.Constraint("Coincident", 4, 2, 5, 1))
sketch13.addConstraint(Sketcher.Constraint("Coincident", 5, 2, 0, 1))
sketch13.addConstraint(Sketcher.Constraint("Coincident", 6, 2, 7, 1))
sketch13.addConstraint(Sketcher.Constraint("Coincident", 7, 2, 8, 1))
sketch13.addConstraint(Sketcher.Constraint("Coincident", 8, 2, 9, 1))
sketch13.addConstraint(Sketcher.Constraint("Coincident", 9, 2, 10, 1))
sketch13.addConstraint(Sketcher.Constraint("Coincident", 10, 2, 11, 1))
sketch13.addConstraint(Sketcher.Constraint("Coincident", 11, 2, 6, 1))
sketch13.addConstraint(Sketcher.Constraint("Vertical", 1))
sketch13.addConstraint(Sketcher.Constraint("Vertical", 4))
sketch13.addConstraint(Sketcher.Constraint("Vertical", 7))
sketch13.addConstraint(Sketcher.Constraint("Vertical", 10))
sketch13.addConstraint(Sketcher.Constraint("Symmetric", 4, 2, 6, 2, -2))
sketch13.addConstraint(Sketcher.Constraint("Symmetric", 2, 2, 8, 2, -2))
sketch13.addConstraint(Sketcher.Constraint("Symmetric", 1, 2, 9, 2, -2))
sketch13.addConstraint(Sketcher.Constraint("Symmetric", 5, 2, 11, 2, -2))
sketch13.addConstraint(Sketcher.Constraint("Parallel", 0, 3))
sketch13.addConstraint(Sketcher.Constraint("Parallel", 2, 5))
sketch13.addConstraint(Sketcher.Constraint("Parallel", 3, 6))
sketch13.addConstraint(Sketcher.Constraint("Parallel", 5, 8))
sketch13.addConstraint(Sketcher.Constraint("Parallel", 8, 11))
sketch13.addConstraint(Sketcher.Constraint("Horizontal", 1, 2, 3, 2))
sketch13.addConstraint(Sketcher.Constraint("Horizontal", 0, 2, 4, 2))
sketch13.addConstraint(Sketcher.Constraint("Angle", 0, Q("150 deg")))
sketch13.addConstraint(Sketcher.Constraint("DistanceX", 2, 2, -1, 1, 25.0))
sketch13.addConstraint(Sketcher.Constraint("DistanceX", 0, 2, -1, 1, 27.9))
sketch13.addConstraint(Sketcher.Constraint("DistanceY", 1, 1, 1, 2, 3.348632))
sketch13.addConstraint(Sketcher.Constraint("DistanceY", -1, 1, 2, 2, 118.348632))
pocket9 = body2.newObject("PartDesign::Pocket", "Pocket008")
pocket9.Profile = sketch13
pocket9.Length = 3
pocket9.Reversed = True

# Sketch on XY plane
sketch14 = body2.newObject("Sketcher::SketchObject", "Sketch013")
sketch14.AttachmentSupport = (doc.getObject("XY_Plane001"), [""])
sketch14.MapMode = "FlatFace"
sketch14.AttachmentOffset = App.Placement(App.Vector(0, 0, 125), App.Rotation())
sketch14.addGeometry(Part.LineSegment(App.Vector(39, 5, 0), App.Vector(39, 0, 0)), False)
sketch14.addGeometry(Part.LineSegment(App.Vector(39, 0, 0), App.Vector(-39, 0, 0)), False)
sketch14.addGeometry(Part.LineSegment(App.Vector(-39, 0, 0), App.Vector(-39, 5, 0)), False)
sketch14.addGeometry(Part.LineSegment(App.Vector(-39, 5, 0), App.Vector(39, 5, 0)), False)
sketch14.addConstraint(Sketcher.Constraint("Coincident", 0, 2, 1, 1))
sketch14.addConstraint(Sketcher.Constraint("Coincident", 1, 2, 2, 1))
sketch14.addConstraint(Sketcher.Constraint("Coincident", 2, 2, 3, 1))
sketch14.addConstraint(Sketcher.Constraint("Coincident", 3, 2, 0, 1))
sketch14.addConstraint(Sketcher.Constraint("Vertical", 0))
sketch14.addConstraint(Sketcher.Constraint("Horizontal", 1))
sketch14.addConstraint(Sketcher.Constraint("Vertical", 2))
sketch14.addConstraint(Sketcher.Constraint("Horizontal", 3))
sketch14.addConstraint(Sketcher.Constraint("Symmetric", 0, 2, 1, 2, -1, 1))
sketch14.addConstraint(Sketcher.Constraint("DistanceY", 0, 2, 0, 1, 5.1))
sketch14.addConstraint(Sketcher.Constraint("DistanceX", 1, 2, 1, 1, 78.571429))
pocket10 = body2.newObject("PartDesign::Pocket", "Pocket009")
pocket10.Profile = sketch14
pocket10.Length = 0.5
pocket10.Reversed = True

# Sketch on XZ plane
sketch15 = body2.newObject("Sketcher::SketchObject", "Sketch014")
sketch15.AttachmentSupport = (doc.getObject("XZ_Plane001"), [""])
sketch15.MapMode = "FlatFace"
sketch15.addGeometry(Part.LineSegment(App.Vector(-46, 365, 0), App.Vector(-46, 250, 0)), False)
sketch15.addGeometry(Part.LineSegment(App.Vector(-46, 250, 0), App.Vector(47, 250, 0)), False)
sketch15.addGeometry(Part.LineSegment(App.Vector(47, 250, 0), App.Vector(47, 365, 0)), False)
sketch15.addGeometry(Part.LineSegment(App.Vector(47, 365, 0), App.Vector(-46, 365, 0)), False)
sketch15.addConstraint(Sketcher.Constraint("Coincident", 0, 2, 1, 1))
sketch15.addConstraint(Sketcher.Constraint("Coincident", 1, 2, 2, 1))
sketch15.addConstraint(Sketcher.Constraint("Coincident", 2, 2, 3, 1))
sketch15.addConstraint(Sketcher.Constraint("Coincident", 3, 2, 0, 1))
sketch15.addConstraint(Sketcher.Constraint("Vertical", 0))
sketch15.addConstraint(Sketcher.Constraint("Horizontal", 1))
sketch15.addConstraint(Sketcher.Constraint("Vertical", 2))
sketch15.addConstraint(Sketcher.Constraint("Horizontal", 3))
sketch15.addConstraint(Sketcher.Constraint("DistanceY", -1, 1, 0, 2, 250.0))
sketch15.addConstraint(Sketcher.Constraint("DistanceX", 1, 1, 1, 2, 92.611658))
sketch15.addConstraint(Sketcher.Constraint("DistanceY", 0, 2, 0, 1, 114.528705))
sketch15.addConstraint(Sketcher.Constraint("DistanceX", -1, 1, 1, 2, 46.99156))
pocket11 = body2.newObject("PartDesign::Pocket", "Pocket010")
pocket11.Profile = sketch15
pocket11.Length = 10

# Sketch on XZ plane
sketch16 = body2.newObject("Sketcher::SketchObject", "Sketch015")
sketch16.AttachmentSupport = (doc.getObject("XZ_Plane001"), [""])
sketch16.MapMode = "FlatFace"
sketch16.addGeometry(Part.LineSegment(App.Vector(-29, 250, 0), App.Vector(-30, 230, 0)), False)
sketch16.addGeometry(Part.LineSegment(App.Vector(-30, 230, 0), App.Vector(30, 230, 0)), False)
sketch16.addGeometry(Part.LineSegment(App.Vector(30, 230, 0), App.Vector(29, 250, 0)), False)
sketch16.addGeometry(Part.LineSegment(App.Vector(29, 250, 0), App.Vector(-29, 250, 0)), False)
sketch16.addConstraint(Sketcher.Constraint("Coincident", 0, 2, 1, 1))
sketch16.addConstraint(Sketcher.Constraint("Coincident", 1, 2, 2, 1))
sketch16.addConstraint(Sketcher.Constraint("Coincident", 2, 2, 3, 1))
sketch16.addConstraint(Sketcher.Constraint("Coincident", 3, 2, 0, 1))
sketch16.addConstraint(Sketcher.Constraint("Horizontal", 1))
sketch16.addConstraint(Sketcher.Constraint("Horizontal", 3))
sketch16.addConstraint(Sketcher.Constraint("Equal", 0, 2))
sketch16.addConstraint(Sketcher.Constraint("DistanceY", -1, 1, 0, 2, 230.0))
sketch16.addConstraint(Sketcher.Constraint("DistanceY", -1, 1, 2, 2, 250.0))
sketch16.addConstraint(Sketcher.Constraint("DistanceX", 1, 1, 1, 2, 60.571429))
sketch16.addConstraint(Sketcher.Constraint("DistanceX", 3, 2, 3, 1, 57.142857))
sketch16.addConstraint(Sketcher.Constraint("DistanceX", -1, 1, 2, 2, 28.571429))
pocket12 = body2.newObject("PartDesign::Pocket", "Pocket011")
pocket12.Profile = sketch16
pocket12.Length = 5.1

# Sketch on XZ plane
sketch17 = body2.newObject("Sketcher::SketchObject", "Sketch016")
sketch17.AttachmentSupport = (doc.getObject("XZ_Plane001"), [""])
sketch17.MapMode = "FlatFace"
sketch17.AttachmentOffset = App.Placement(App.Vector(0, 0, -5.1), App.Rotation())
sketch17.addGeometry(Part.Circle(App.Vector(-20, 240, 0), App.Vector(0, 0, 1), 1.7), False)
sketch17.addGeometry(Part.Circle(App.Vector(20, 240, 0), App.Vector(0, 0, 1), 1.7), False)
sketch17.addConstraint(Sketcher.Constraint("Equal", 0, 1))
sketch17.addConstraint(Sketcher.Constraint("Symmetric", 0, 3, 1, 3, -2))
sketch17.addConstraint(Sketcher.Constraint("Diameter", 0, 3.4))
sketch17.addConstraint(Sketcher.Constraint("DistanceX", 0, 3, -1, 1, 20.0))
sketch17.addConstraint(Sketcher.Constraint("DistanceY", -1, 1, 0, 3, 240.0))
pocket13 = body2.newObject("PartDesign::Pocket", "Pocket012")
pocket13.Profile = sketch17
pocket13.Length = 5.1

# Sketch on XZ plane
sketch18 = body2.newObject("Sketcher::SketchObject", "Sketch017")
sketch18.AttachmentSupport = (doc.getObject("XZ_Plane001"), [""])
sketch18.MapMode = "FlatFace"
sketch18.AttachmentOffset = App.Placement(App.Vector(0, 0, -10), App.Rotation())
sketch18.addGeometry(Part.LineSegment(App.Vector(-20, 236.7, 0), App.Vector(-22.9, 238.3, 0)), False)
sketch18.addGeometry(Part.LineSegment(App.Vector(-22.9, 238.3, 0), App.Vector(-22.9, 241.7, 0)), False)
sketch18.addGeometry(Part.LineSegment(App.Vector(-22.9, 241.7, 0), App.Vector(-20, 243.3, 0)), False)
sketch18.addGeometry(Part.LineSegment(App.Vector(-20, 243.3, 0), App.Vector(-17.1, 241.7, 0)), False)
sketch18.addGeometry(Part.LineSegment(App.Vector(-17.1, 241.7, 0), App.Vector(-17.1, 238.3, 0)), False)
sketch18.addGeometry(Part.LineSegment(App.Vector(-17.1, 238.3, 0), App.Vector(-20, 236.7, 0)), False)
sketch18.addGeometry(Part.LineSegment(App.Vector(20, 236.7, 0), App.Vector(17.1, 238.3, 0)), False)
sketch18.addGeometry(Part.LineSegment(App.Vector(17.1, 238.3, 0), App.Vector(17.1, 241.7, 0)), False)
sketch18.addGeometry(Part.LineSegment(App.Vector(17.1, 241.7, 0), App.Vector(20, 243.3, 0)), False)
sketch18.addGeometry(Part.LineSegment(App.Vector(20, 243.3, 0), App.Vector(22.9, 241.7, 0)), False)
sketch18.addGeometry(Part.LineSegment(App.Vector(22.9, 241.7, 0), App.Vector(22.9, 238.3, 0)), False)
sketch18.addGeometry(Part.LineSegment(App.Vector(22.9, 238.3, 0), App.Vector(20, 236.7, 0)), False)
sketch18.addConstraint(Sketcher.Constraint("Coincident", 0, 2, 1, 1))
sketch18.addConstraint(Sketcher.Constraint("Coincident", 1, 2, 2, 1))
sketch18.addConstraint(Sketcher.Constraint("Coincident", 2, 2, 3, 1))
sketch18.addConstraint(Sketcher.Constraint("Coincident", 3, 2, 4, 1))
sketch18.addConstraint(Sketcher.Constraint("Coincident", 4, 2, 5, 1))
sketch18.addConstraint(Sketcher.Constraint("Coincident", 5, 2, 0, 1))
sketch18.addConstraint(Sketcher.Constraint("Coincident", 6, 2, 7, 1))
sketch18.addConstraint(Sketcher.Constraint("Coincident", 7, 2, 8, 1))
sketch18.addConstraint(Sketcher.Constraint("Coincident", 8, 2, 9, 1))
sketch18.addConstraint(Sketcher.Constraint("Coincident", 9, 2, 10, 1))
sketch18.addConstraint(Sketcher.Constraint("Coincident", 10, 2, 11, 1))
sketch18.addConstraint(Sketcher.Constraint("Coincident", 11, 2, 6, 1))
sketch18.addConstraint(Sketcher.Constraint("Vertical", 1))
sketch18.addConstraint(Sketcher.Constraint("Vertical", 4))
sketch18.addConstraint(Sketcher.Constraint("Vertical", 7))
sketch18.addConstraint(Sketcher.Constraint("Vertical", 10))
sketch18.addConstraint(Sketcher.Constraint("Symmetric", 4, 2, 6, 2, -2))
sketch18.addConstraint(Sketcher.Constraint("Symmetric", 2, 2, 8, 2, -2))
sketch18.addConstraint(Sketcher.Constraint("Symmetric", 1, 2, 9, 2, -2))
sketch18.addConstraint(Sketcher.Constraint("Symmetric", 5, 2, 11, 2, -2))
sketch18.addConstraint(Sketcher.Constraint("Parallel", 0, 3))
sketch18.addConstraint(Sketcher.Constraint("Parallel", 2, 5))
sketch18.addConstraint(Sketcher.Constraint("Parallel", 3, 6))
sketch18.addConstraint(Sketcher.Constraint("Parallel", 5, 8))
sketch18.addConstraint(Sketcher.Constraint("Parallel", 8, 11))
sketch18.addConstraint(Sketcher.Constraint("Horizontal", 1, 2, 3, 2))
sketch18.addConstraint(Sketcher.Constraint("Horizontal", 0, 2, 4, 2))
sketch18.addConstraint(Sketcher.Constraint("Angle", 0, Q("150 deg")))
sketch18.addConstraint(Sketcher.Constraint("DistanceX", 2, 2, -1, 1, 20.0))
sketch18.addConstraint(Sketcher.Constraint("DistanceX", 0, 2, -1, 1, 22.9))
sketch18.addConstraint(Sketcher.Constraint("DistanceY", 1, 1, 1, 2, 3.348632))
sketch18.addConstraint(Sketcher.Constraint("DistanceY", -1, 1, 2, 2, 243.348632))
pocket14 = body2.newObject("PartDesign::Pocket", "Pocket013")
pocket14.Profile = sketch18
pocket14.Length = 3
pocket14.Reversed = True

doc.recompute()
